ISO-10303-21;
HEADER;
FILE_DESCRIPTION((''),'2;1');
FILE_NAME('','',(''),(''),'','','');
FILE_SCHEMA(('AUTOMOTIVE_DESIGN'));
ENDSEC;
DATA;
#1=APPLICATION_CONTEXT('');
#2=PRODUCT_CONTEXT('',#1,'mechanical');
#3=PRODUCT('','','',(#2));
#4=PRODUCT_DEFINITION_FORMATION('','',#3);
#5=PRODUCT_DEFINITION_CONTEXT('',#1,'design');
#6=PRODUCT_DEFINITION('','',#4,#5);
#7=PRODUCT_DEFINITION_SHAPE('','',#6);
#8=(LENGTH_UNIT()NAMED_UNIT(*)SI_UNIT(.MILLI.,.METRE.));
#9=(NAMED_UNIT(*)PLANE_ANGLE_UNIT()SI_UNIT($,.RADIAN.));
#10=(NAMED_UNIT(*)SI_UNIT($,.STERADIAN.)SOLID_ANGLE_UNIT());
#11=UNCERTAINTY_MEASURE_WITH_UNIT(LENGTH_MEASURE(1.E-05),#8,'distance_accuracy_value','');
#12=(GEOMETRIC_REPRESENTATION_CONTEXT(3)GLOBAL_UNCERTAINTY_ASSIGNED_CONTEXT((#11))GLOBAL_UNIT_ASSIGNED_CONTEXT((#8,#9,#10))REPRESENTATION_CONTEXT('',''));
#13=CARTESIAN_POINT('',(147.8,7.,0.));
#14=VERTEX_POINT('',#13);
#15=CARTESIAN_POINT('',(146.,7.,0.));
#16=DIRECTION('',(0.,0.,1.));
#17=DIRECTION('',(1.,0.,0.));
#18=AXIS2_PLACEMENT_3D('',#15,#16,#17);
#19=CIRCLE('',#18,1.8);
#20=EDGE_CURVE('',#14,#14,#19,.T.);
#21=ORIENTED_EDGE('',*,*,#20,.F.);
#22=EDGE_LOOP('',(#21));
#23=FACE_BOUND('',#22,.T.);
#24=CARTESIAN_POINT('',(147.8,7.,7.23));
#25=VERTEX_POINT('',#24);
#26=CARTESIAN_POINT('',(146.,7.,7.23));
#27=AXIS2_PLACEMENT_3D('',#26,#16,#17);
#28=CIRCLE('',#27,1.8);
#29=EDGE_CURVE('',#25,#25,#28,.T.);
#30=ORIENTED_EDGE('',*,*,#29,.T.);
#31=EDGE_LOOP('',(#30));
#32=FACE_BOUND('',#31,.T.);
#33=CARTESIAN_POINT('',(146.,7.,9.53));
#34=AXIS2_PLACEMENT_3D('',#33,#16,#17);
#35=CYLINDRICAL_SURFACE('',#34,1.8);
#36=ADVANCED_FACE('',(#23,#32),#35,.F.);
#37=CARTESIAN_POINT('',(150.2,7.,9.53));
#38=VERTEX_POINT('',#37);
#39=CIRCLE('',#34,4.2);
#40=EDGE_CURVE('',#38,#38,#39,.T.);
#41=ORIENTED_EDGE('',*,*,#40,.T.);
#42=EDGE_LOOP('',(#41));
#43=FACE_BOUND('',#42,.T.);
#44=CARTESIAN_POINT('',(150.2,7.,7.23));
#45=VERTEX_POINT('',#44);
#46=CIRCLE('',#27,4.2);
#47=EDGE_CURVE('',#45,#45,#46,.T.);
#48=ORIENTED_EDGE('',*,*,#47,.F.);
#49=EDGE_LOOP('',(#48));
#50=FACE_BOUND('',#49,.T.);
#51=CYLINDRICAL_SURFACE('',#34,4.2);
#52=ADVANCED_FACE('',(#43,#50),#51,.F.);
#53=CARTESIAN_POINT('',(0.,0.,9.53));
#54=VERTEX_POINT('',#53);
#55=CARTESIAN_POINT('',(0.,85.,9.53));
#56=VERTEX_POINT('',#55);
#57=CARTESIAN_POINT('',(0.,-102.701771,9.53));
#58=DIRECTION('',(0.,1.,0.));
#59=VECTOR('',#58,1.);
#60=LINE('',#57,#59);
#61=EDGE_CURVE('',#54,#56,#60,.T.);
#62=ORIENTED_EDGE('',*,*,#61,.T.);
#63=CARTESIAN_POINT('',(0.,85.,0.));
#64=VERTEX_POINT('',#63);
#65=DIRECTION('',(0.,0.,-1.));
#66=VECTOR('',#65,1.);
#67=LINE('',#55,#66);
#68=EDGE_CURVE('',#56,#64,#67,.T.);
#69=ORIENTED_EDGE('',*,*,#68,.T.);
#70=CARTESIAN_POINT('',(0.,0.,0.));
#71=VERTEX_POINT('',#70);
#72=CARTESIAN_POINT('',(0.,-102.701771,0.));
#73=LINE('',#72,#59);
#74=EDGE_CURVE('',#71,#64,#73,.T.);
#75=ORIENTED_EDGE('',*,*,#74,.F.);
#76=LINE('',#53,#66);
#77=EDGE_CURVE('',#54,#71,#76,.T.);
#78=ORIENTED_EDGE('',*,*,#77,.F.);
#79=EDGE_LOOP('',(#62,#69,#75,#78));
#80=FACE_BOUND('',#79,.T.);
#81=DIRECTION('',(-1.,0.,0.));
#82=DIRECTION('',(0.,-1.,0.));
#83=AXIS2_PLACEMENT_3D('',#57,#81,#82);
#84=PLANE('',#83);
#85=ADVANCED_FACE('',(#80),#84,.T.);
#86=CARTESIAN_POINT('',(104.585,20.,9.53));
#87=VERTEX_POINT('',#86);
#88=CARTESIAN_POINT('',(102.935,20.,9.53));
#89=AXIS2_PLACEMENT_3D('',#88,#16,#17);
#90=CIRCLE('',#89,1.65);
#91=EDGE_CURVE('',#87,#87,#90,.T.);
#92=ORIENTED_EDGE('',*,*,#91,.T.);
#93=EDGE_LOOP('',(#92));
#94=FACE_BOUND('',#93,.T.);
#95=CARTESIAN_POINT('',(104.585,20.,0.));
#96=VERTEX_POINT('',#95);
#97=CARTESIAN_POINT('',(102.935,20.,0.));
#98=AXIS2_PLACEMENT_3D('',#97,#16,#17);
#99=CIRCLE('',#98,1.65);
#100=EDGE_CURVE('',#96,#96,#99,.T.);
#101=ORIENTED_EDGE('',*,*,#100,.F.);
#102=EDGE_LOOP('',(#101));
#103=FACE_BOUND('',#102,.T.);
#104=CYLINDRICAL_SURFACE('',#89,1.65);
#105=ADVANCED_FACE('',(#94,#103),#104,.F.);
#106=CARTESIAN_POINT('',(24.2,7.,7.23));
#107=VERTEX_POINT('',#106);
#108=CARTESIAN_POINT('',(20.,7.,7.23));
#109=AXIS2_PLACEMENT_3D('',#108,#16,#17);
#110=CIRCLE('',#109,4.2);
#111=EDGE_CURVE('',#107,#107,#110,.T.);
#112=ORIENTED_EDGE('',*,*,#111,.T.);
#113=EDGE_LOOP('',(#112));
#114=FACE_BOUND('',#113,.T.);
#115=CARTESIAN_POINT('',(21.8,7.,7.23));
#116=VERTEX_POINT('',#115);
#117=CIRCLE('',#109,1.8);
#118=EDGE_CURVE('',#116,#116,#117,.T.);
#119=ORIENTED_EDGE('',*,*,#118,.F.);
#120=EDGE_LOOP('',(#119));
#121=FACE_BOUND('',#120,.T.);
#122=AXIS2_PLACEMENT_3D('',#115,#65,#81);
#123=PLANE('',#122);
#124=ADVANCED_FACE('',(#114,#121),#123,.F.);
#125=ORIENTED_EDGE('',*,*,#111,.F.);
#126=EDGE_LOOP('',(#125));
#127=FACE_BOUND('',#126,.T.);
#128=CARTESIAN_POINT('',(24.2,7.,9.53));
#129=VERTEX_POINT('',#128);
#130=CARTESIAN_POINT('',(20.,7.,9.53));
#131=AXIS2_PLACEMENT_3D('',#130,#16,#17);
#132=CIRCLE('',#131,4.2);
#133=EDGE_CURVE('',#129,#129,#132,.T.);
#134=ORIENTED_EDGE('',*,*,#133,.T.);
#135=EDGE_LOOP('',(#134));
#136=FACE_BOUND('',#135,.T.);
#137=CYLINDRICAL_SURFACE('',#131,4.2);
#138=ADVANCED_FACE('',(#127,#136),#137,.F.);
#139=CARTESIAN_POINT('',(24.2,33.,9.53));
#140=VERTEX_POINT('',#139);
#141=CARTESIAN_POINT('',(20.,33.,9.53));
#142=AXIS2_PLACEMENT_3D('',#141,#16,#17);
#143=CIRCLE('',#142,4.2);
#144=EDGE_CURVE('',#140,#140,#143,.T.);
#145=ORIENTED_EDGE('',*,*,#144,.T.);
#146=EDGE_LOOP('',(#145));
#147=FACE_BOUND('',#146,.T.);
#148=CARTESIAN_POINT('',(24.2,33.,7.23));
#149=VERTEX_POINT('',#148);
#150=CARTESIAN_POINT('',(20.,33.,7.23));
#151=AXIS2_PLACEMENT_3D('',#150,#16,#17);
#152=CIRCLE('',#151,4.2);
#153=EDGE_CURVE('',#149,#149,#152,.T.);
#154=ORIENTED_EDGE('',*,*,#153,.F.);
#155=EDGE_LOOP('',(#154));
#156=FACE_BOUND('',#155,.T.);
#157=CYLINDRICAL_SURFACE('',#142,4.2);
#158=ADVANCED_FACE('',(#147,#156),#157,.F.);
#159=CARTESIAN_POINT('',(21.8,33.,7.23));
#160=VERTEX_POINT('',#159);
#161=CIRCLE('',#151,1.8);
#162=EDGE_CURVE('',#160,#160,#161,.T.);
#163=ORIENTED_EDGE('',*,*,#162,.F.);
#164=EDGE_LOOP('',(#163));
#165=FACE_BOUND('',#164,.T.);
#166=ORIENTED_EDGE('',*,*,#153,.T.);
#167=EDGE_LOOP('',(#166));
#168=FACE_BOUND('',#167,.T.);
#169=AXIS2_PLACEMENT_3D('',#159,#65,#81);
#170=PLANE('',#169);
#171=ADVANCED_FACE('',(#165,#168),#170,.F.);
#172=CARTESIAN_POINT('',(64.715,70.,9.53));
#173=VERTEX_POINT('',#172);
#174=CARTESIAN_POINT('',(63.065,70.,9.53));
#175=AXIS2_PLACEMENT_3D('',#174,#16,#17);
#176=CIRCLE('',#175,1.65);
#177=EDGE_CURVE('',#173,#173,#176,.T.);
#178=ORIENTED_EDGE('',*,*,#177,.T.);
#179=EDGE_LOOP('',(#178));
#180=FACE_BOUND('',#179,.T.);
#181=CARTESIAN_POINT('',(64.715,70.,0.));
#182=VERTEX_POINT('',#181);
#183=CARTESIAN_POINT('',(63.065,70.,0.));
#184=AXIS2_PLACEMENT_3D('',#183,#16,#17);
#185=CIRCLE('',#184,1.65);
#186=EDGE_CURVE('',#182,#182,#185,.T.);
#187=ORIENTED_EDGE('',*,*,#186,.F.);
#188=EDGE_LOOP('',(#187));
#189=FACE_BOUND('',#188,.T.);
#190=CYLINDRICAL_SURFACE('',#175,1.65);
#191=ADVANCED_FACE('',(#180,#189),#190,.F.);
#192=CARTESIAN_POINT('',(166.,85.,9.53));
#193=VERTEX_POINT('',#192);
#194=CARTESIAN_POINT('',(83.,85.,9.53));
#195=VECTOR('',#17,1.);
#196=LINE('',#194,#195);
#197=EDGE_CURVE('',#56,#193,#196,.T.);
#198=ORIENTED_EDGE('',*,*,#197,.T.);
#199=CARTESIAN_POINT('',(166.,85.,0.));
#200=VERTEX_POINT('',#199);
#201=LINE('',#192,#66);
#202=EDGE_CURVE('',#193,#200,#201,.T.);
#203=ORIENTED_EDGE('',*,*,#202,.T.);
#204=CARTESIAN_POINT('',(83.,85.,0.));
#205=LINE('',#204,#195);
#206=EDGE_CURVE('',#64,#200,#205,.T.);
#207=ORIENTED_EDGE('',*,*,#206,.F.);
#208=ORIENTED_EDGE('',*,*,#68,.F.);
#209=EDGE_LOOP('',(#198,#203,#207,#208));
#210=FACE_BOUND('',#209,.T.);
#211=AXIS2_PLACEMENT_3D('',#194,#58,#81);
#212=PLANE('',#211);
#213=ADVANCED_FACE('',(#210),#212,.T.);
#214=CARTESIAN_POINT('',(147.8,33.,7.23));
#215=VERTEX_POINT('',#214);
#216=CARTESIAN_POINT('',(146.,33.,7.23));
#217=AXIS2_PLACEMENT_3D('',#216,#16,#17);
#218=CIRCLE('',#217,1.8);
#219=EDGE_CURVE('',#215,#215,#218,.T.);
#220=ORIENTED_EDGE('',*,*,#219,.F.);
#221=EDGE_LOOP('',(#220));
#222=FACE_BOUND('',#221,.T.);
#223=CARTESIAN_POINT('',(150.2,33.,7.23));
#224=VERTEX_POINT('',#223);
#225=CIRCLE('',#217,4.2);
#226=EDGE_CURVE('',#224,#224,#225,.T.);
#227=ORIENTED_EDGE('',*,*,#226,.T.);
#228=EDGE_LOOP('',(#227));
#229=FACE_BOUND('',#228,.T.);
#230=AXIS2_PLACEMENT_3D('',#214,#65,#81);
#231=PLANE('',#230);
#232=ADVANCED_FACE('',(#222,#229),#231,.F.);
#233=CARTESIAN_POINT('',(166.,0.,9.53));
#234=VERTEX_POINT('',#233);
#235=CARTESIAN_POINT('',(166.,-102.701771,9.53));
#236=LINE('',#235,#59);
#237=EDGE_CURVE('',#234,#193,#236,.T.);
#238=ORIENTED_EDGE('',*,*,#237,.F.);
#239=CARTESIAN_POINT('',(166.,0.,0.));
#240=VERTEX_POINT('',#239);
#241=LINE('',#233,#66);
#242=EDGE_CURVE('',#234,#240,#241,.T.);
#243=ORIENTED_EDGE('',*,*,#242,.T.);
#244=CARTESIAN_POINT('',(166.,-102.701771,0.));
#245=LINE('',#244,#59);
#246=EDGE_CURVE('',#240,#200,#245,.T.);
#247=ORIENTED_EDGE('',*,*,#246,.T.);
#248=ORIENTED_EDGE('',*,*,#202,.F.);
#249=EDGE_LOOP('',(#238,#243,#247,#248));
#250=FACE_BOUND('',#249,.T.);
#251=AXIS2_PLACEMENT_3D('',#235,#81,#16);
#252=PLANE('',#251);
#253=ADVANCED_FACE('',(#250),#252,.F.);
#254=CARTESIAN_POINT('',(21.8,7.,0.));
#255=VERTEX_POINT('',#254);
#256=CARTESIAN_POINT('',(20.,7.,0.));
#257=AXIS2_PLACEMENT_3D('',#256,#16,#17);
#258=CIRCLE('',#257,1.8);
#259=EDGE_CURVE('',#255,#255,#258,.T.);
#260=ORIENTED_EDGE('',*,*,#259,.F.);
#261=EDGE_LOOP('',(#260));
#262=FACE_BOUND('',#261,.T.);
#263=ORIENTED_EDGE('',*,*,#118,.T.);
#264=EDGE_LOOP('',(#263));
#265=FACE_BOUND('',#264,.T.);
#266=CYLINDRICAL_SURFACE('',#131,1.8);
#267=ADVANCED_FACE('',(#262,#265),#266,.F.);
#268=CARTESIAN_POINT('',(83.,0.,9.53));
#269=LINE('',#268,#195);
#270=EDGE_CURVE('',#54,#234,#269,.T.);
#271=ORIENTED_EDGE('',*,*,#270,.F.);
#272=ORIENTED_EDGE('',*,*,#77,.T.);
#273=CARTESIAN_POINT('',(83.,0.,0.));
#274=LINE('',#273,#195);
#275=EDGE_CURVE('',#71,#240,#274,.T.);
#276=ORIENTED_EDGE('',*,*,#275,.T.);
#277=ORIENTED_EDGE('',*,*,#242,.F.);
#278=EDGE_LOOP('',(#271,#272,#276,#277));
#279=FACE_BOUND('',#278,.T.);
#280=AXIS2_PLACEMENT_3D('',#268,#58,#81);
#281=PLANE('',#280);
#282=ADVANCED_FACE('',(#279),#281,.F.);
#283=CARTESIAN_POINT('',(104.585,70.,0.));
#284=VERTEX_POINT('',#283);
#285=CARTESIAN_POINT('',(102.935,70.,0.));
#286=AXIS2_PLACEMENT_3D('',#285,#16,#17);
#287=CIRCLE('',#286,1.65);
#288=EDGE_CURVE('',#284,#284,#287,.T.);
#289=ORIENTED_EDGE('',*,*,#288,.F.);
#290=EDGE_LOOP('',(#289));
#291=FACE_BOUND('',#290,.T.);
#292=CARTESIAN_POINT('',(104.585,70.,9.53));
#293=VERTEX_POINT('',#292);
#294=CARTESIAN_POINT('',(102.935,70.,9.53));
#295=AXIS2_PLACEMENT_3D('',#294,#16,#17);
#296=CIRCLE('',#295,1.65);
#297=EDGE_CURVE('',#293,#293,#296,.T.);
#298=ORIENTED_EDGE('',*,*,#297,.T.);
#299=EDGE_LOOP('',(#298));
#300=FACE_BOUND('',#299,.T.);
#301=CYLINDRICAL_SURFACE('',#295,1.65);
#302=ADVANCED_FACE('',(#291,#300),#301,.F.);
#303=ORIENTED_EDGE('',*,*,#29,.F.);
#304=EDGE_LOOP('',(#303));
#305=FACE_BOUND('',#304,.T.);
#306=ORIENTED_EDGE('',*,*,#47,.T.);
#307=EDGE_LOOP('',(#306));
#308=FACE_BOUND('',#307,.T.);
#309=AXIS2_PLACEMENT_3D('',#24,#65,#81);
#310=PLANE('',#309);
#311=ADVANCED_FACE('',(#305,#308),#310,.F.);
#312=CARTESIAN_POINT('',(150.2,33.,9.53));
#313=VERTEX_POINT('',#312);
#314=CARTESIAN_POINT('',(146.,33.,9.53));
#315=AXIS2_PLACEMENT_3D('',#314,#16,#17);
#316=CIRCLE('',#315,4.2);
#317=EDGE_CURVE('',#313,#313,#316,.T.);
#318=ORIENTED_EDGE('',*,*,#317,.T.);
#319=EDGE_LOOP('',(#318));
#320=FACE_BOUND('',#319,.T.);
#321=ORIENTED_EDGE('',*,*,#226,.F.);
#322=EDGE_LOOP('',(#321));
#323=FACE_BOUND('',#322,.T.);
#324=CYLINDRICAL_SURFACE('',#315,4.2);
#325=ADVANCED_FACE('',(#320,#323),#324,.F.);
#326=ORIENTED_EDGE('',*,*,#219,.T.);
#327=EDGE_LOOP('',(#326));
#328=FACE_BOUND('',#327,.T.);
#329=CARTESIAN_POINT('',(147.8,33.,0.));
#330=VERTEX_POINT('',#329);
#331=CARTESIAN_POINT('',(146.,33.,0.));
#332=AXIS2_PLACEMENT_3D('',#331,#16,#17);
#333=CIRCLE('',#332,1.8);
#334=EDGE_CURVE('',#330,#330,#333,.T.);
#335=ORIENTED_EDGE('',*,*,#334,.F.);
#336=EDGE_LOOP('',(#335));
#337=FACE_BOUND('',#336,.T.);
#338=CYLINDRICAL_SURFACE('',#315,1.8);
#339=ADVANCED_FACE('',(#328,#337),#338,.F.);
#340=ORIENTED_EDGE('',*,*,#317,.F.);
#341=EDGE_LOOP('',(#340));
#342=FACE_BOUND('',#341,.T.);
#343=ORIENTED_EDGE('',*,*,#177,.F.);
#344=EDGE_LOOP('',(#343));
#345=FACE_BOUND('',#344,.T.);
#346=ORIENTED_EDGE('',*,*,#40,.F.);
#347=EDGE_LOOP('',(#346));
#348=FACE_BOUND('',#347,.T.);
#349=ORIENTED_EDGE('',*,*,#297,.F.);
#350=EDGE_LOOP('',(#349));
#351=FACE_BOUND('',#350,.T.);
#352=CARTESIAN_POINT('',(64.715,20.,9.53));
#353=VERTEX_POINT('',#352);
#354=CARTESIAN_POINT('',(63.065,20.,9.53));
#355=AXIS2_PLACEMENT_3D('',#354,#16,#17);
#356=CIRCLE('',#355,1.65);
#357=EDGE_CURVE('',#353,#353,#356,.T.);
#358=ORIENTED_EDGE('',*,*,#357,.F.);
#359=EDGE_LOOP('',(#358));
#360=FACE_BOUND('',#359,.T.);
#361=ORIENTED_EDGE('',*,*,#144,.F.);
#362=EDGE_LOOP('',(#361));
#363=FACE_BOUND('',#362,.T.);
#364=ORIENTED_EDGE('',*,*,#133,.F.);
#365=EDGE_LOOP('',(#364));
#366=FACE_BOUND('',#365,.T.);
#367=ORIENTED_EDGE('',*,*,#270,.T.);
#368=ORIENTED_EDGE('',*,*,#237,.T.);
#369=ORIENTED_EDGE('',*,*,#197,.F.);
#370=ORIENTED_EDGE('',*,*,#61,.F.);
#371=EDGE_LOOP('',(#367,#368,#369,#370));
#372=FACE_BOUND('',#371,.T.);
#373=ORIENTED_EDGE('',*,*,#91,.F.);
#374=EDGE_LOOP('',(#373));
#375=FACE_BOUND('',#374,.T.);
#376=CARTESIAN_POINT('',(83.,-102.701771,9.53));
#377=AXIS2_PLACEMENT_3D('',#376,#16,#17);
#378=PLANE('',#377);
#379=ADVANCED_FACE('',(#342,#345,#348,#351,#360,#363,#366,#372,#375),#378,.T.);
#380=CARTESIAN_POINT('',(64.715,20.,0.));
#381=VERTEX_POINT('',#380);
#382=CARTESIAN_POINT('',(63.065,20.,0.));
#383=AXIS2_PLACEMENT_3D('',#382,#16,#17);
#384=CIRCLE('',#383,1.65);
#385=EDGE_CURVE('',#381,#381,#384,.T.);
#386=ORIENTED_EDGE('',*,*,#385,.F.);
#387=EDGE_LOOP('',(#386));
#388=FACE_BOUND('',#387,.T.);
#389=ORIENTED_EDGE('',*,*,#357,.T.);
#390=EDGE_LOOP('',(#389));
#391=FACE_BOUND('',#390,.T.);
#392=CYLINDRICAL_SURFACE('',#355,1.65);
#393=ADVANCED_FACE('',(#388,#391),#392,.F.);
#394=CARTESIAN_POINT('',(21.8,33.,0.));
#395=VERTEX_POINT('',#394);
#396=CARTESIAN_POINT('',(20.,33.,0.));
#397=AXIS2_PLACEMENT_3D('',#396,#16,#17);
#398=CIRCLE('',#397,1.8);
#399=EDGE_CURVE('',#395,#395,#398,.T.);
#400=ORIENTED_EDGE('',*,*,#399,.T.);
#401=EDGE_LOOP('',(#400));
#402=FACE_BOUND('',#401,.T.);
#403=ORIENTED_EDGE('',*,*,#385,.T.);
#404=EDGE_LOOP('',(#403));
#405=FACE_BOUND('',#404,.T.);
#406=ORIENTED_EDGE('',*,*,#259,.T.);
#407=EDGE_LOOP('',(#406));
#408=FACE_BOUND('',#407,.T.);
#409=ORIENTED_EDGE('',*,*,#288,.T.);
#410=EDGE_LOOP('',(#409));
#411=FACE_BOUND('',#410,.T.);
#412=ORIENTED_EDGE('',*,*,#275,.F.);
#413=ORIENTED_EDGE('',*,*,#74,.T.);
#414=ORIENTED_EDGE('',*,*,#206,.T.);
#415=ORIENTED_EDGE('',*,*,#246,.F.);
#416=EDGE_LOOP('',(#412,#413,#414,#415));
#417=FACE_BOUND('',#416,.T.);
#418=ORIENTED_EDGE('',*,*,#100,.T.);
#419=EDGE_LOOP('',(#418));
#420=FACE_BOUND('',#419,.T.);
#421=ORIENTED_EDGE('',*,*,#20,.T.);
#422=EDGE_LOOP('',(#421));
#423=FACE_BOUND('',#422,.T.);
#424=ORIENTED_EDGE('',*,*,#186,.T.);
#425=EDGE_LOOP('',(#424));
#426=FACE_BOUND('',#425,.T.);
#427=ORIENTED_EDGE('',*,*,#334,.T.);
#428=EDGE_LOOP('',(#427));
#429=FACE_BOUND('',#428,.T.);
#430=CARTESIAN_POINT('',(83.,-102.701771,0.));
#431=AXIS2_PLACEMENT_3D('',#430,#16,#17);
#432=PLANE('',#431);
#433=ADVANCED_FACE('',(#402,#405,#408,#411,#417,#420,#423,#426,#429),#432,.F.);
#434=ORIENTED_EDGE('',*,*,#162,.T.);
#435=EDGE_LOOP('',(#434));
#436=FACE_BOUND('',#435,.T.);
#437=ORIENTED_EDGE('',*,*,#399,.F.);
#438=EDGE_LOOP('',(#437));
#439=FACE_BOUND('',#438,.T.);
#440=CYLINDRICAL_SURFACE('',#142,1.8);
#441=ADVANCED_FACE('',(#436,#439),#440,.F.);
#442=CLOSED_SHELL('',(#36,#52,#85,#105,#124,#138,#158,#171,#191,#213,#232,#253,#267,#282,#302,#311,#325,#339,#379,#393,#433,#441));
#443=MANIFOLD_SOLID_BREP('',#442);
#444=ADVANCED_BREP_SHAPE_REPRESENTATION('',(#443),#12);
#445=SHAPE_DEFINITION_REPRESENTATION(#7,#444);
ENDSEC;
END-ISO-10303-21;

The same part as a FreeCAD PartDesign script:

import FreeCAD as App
import Part
import Sketcher

V = App.Vector
Q = App.Units.Quantity


def add_polygon(sketch, points):
    """Adds a closed chain of lines whose ends are joined by coincident constraints."""
    first, n = sketch.GeometryCount, len(points)
    for a, b in zip(points, points[1:] + points[:1]):
        sketch.addGeometry(Part.LineSegment(App.Vector(*a, 0), App.Vector(*b, 0)), False)
    for i in range(n):
        sketch.addConstraint(Sketcher.Constraint("Coincident", first + i, 2, first + (i + 1) % n, 1))

doc = App.newDocument("Part")
body = doc.addObject("PartDesign::Body", "Body")

# Sketch on XY plane
sketch1 = doc.addObject("Sketcher::SketchObject", "Sketch")
body.addObject(sketch1)
sketch1.AttachmentSupport = (doc.XY_Plane, [""])
sketch1.MapMode = "FlatFace"
add_polygon(sketch1, [(166, 0), (166, 85), (0, 85), (0, 0)])  # lines 0-3
sketch1.addConstraint([
    Sketcher.Constraint("Vertical", 0),
    Sketcher.Constraint("Horizontal", 1),
    Sketcher.Constraint("Vertical", 2),
    Sketcher.Constraint("Horizontal", 3),
    Sketcher.Constraint("Coincident", 2, 2, -1, 1),
    Sketcher.Constraint("DistanceX", 1, 2, 1, 1, Q("166 mm")),
    Sketcher.Constraint("DistanceY", 0, 1, 0, 2, Q("85 mm")),
])
pad1 = doc.addObject("PartDesign::Pad", "Pad")
body.addObject(pad1)
pad1.Profile = sketch1
pad1.Length = 9.53

# Sketch on XY plane
sketch2 = doc.addObject("Sketcher::SketchObject", "Sketch001")
body.addObject(sketch2)
sketch2.AttachmentSupport = (doc.XY_Plane, [""])
sketch2.MapMode = "FlatFace"
sketch2.AttachmentOffset = App.Placement(V(0, 0, 9.53), App.Rotation())
sketch2.addGeometry([
    Part.Circle(V(20, 33, 0), V(0, 0, 1), 1.8),
    Part.Circle(V(20, 7, 0), V(0, 0, 1), 1.8),
    Part.Circle(V(146, 33, 0), V(0, 0, 1), 1.8),
    Part.Circle(V(146, 7, 0), V(0, 0, 1), 1.8),
], False)
sketch2.addConstraint([
    Sketcher.Constraint("Equal", 0, 1),
    Sketcher.Constraint("Equal", 1, 2),
    Sketcher.Constraint("Equal", 2, 3),
    Sketcher.Constraint("Horizontal", 0, 3, 2, 3),
    Sketcher.Constraint("Horizontal", 1, 3, 3, 3),
    Sketcher.Constraint("Vertical", 0, 3, 1, 3),
    Sketcher.Constraint("Vertical", 2, 3, 3, 3),
    Sketcher.Constraint("Diameter", 0, Q("3.6 mm")),
    Sketcher.Constraint("DistanceX", -1, 1, 0, 3, Q("20 mm")),
    Sketcher.Constraint("DistanceY", -1, 1, 0, 3, Q("33 mm")),
    Sketcher.Constraint("DistanceY", -1, 1, 1, 3, Q("7 mm")),
    Sketcher.Constraint("DistanceX", -1, 1, 2, 3, Q("146 mm")),
])
doc.recompute()
hole = doc.addObject("PartDesign::Hole", "Hole")
body.addObject(hole)
hole.Profile = sketch2
hole.ThreadType = "None"
hole.Diameter = 3.6
hole.DepthType = "ThroughAll"
hole.HoleCutType = "Counterbore"
hole.HoleCutDiameter = 8.4
hole.HoleCutDepth = 2.3

# Sketch on XY plane
sketch3 = doc.addObject("Sketcher::SketchObject", "Sketch002")
body.addObject(sketch3)
sketch3.AttachmentSupport = (doc.XY_Plane, [""])
sketch3.MapMode = "FlatFace"
sketch3.AttachmentOffset = App.Placement(V(0, 0, 9.53), App.Rotation())
sketch3.addGeometry([
    Part.Circle(V(63.065, 70, 0), V(0, 0, 1), 1.65),
    Part.Circle(V(63.065, 20, 0), V(0, 0, 1), 1.65),
    Part.Circle(V(102.935, 70, 0), V(0, 0, 1), 1.65),
    Part.Circle(V(102.935, 20, 0), V(0, 0, 1), 1.65),
], False)
sketch3.addConstraint([
    Sketcher.Constraint("Equal", 0, 1),
    Sketcher.Constraint("Equal", 1, 2),
    Sketcher.Constraint("Equal", 2, 3),
    Sketcher.Constraint("Horizontal", 0, 3, 2, 3),
    Sketcher.Constraint("Horizontal", 1, 3, 3, 3),
    Sketcher.Constraint("Vertical", 0, 3, 1, 3),
    Sketcher.Constraint("Vertical", 2, 3, 3, 3),
    Sketcher.Constraint("Diameter", 0, Q("3.3 mm")),
    Sketcher.Constraint("DistanceY", -1, 1, 0, 3, Q("70 mm")),
    Sketcher.Constraint("DistanceY", -1, 1, 1, 3, Q("20 mm")),
    Sketcher.Constraint("DistanceX", 0, 3, 2, 3, Q("39.87 mm")),
    Sketcher.Constraint("DistanceX", -1, 1, 0, 3, Q("63.065 mm")),
])
doc.recompute()
hole2 = doc.addObject("PartDesign::Hole", "Hole001")
body.addObject(hole2)
hole2.Profile = sketch3
hole2.ThreadType = "None"
hole2.Diameter = 3.3
hole2.DepthType = "Dimension"
hole2.Depth = 10.1
hole2.DrillPoint = "Angled"
hole2.DrillPointAngle = 118

doc.recompute()
